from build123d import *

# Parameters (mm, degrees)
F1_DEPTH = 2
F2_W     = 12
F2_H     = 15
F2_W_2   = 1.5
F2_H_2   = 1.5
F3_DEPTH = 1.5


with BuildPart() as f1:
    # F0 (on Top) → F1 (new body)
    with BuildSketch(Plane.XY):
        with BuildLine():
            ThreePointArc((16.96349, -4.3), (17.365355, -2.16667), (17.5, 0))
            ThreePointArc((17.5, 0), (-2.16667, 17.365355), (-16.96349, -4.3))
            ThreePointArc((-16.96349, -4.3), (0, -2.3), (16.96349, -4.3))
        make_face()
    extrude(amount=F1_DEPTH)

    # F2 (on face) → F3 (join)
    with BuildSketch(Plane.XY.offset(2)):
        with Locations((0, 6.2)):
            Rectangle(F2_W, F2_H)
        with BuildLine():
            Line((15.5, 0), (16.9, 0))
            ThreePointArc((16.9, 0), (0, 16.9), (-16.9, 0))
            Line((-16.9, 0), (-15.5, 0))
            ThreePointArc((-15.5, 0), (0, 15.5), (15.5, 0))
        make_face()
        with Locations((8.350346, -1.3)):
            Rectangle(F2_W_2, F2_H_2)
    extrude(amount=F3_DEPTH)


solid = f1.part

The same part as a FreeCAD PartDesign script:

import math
import FreeCAD as App
import Part
import Sketcher


def add_polygon(sketch, points):
    """Adds a closed chain of lines whose ends are joined by coincident constraints."""
    first, n = sketch.GeometryCount, len(points)
    for a, b in zip(points, points[1:] + points[:1]):
        sketch.addGeometry(Part.LineSegment(App.Vector(*a, 0), App.Vector(*b, 0)), False)
    for i in range(n):
        sketch.addConstraint(Sketcher.Constraint("Coincident", first + i, 2, first + (i + 1) % n, 1))

doc = App.newDocument("Part")
body = doc.addObject("PartDesign::Body", "Body")

# Sketch on XY plane
sketch1 = doc.addObject("Sketcher::SketchObject", "Sketch")
body.addObject(sketch1)
sketch1.AttachmentSupport = (doc.XY_Plane, [""])
sketch1.MapMode = "FlatFace"
sketch1.addGeometry([
    Part.ArcOfCircle(Part.Circle(App.Vector(0, 0, 0), App.Vector(0, 0, 1), 17.5), math.radians(-14.22), math.radians(0)),
    Part.ArcOfCircle(Part.Circle(App.Vector(0, 0, 0), App.Vector(0, 0, 1), 17.5), math.radians(0), math.radians(194)),
    Part.ArcOfCircle(Part.Circle(App.Vector(0, -75.2, 0), App.Vector(0, 0, 1), 72.9), math.radians(77), math.radians(103)),
], False)
sketch1.addConstraint([
    Sketcher.Constraint("Tangent", 0, 2, 1, 1),
    Sketcher.Constraint("Coincident", 1, 2, 2, 2),
    Sketcher.Constraint("Coincident", 2, 1, 0, 1),
    Sketcher.Constraint("Coincident", 1, 3, -1, 1),
    Sketcher.Constraint("PointOnObject", 2, 3, -2),
    Sketcher.Constraint("PointOnObject", 0, 2, -1),
    Sketcher.Constraint("Radius", 1, 17.5),
    Sketcher.Constraint("Radius", 2, 72.939998),
    Sketcher.Constraint("DistanceY", 1, 2, -1, 1, 4.3),
    Sketcher.Constraint("Radius", 0, 17.499938),
])
pad1 = doc.addObject("PartDesign::Pad", "Pad")
body.addObject(pad1)
pad1.Profile = sketch1
pad1.Length = 2

# Sketch on XY plane
sketch2 = doc.addObject("Sketcher::SketchObject", "Sketch001")
body.addObject(sketch2)
sketch2.AttachmentSupport = (doc.XY_Plane, [""])
sketch2.MapMode = "FlatFace"
sketch2.AttachmentOffset = App.Placement(App.Vector(0, 0, 2), App.Rotation())
add_polygon(sketch2, [(-6, 13.7), (-6, -1.3), (6, -1.3), (6, 13.7)])  # lines 0-3
sketch2.addGeometry(Part.LineSegment(App.Vector(15.5, 0, 0), App.Vector(16.9, 0, 0)), False)  # 4
sketch2.addGeometry(Part.ArcOfCircle(Part.Circle(App.Vector(0, 0, 0), App.Vector(0, 0, 1), 16.9), math.radians(0), math.radians(180)), False)  # 5
sketch2.addGeometry(Part.LineSegment(App.Vector(-16.9, 0, 0), App.Vector(-15.5, 0, 0)), False)  # 6
sketch2.addGeometry(Part.ArcOfCircle(Part.Circle(App.Vector(0, 0, 0), App.Vector(0, 0, 1), 15.5), math.radians(0), math.radians(180)), False)  # 7
add_polygon(sketch2, [(7.6, -0.6), (7.6, -2), (9.1, -2), (9.1, -0.6)])  # lines 8-11
sketch2.addConstraint([
    Sketcher.Constraint("Coincident", 4, 2, 5, 1),
    Sketcher.Constraint("Coincident", 5, 2, 6, 1),
    Sketcher.Constraint("Coincident", 6, 2, 7, 2),
    Sketcher.Constraint("Coincident", 7, 1, 4, 1),
    Sketcher.Constraint("Vertical", 0),
    Sketcher.Constraint("Horizontal", 1),
    Sketcher.Constraint("Vertical", 2),
    Sketcher.Constraint("Horizontal", 3),
    Sketcher.Constraint("Horizontal", 4),
    Sketcher.Constraint("Horizontal", 6),
    Sketcher.Constraint("Vertical", 8),
    Sketcher.Constraint("Horizontal", 9),
    Sketcher.Constraint("Vertical", 10),
    Sketcher.Constraint("Horizontal", 11),
    Sketcher.Constraint("Coincident", 5, 3, -1, 1),
    Sketcher.Constraint("Coincident", 7, 3, -1, 1),
    Sketcher.Constraint("PointOnObject", 4, 2, -1),
    Sketcher.Constraint("PointOnObject", 5, 2, -1),
    Sketcher.Constraint("Equal", 11, 8),
    Sketcher.Constraint("Radius", 5, 16.9),
    Sketcher.Constraint("Radius", 7, 15.5),
    Sketcher.Constraint("DistanceX", 1, 1, 1, 2, 12.0),
    Sketcher.Constraint("DistanceY", 0, 2, 0, 1, 15.0),
    Sketcher.Constraint("DistanceX", 9, 1, 9, 2, 1.5),
    Sketcher.Constraint("DistanceX", 0, 2, -1, 1, 6.0),
    Sketcher.Constraint("DistanceY", 0, 2, -1, 1, 1.3),
    Sketcher.Constraint("DistanceY", 8, 2, -1, 1, 2.05),
    Sketcher.Constraint("DistanceX", -1, 1, 8, 2, 7.600346),
])
pad2 = doc.addObject("PartDesign::Pad", "Pad001")
body.addObject(pad2)
pad2.Profile = sketch2
pad2.Length = 1.5

doc.recompute()
